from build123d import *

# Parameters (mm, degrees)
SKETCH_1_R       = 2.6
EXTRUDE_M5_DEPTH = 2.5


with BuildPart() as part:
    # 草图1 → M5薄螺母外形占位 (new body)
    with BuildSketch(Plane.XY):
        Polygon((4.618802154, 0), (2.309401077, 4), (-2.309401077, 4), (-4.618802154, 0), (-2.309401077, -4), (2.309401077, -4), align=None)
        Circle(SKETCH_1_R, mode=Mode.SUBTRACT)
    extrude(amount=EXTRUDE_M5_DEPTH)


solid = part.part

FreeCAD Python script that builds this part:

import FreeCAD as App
import Part
import Sketcher

V = App.Vector
Q = App.Units.Quantity

doc = App.newDocument("Part")
params = doc.addObject("Spreadsheet::Sheet", "Params")
for row, (alias, value) in enumerate([
    ("sketch1_diameter", "5.2 mm"),
    ("pad1_length", "2.5 mm"),
], start=1):
    params.set(f"A{row}", alias)
    params.set(f"B{row}", "=" + value)
    params.setAlias(f"B{row}", alias)

body = doc.addObject("PartDesign::Body", "Body")

sketch1 = body.newObject("Sketcher::SketchObject", "Sketch")
sketch1.AttachmentSupport = (doc.getObject("XY_Plane"), [""])
sketch1.MapMode = "FlatFace"
sketch1.addGeometry([
    Part.LineSegment(V(4.6, 0, 0), V(2.3, 4, 0)),
    Part.LineSegment(V(2.3, 4, 0), V(-2.3, 4, 0)),
    Part.LineSegment(V(-2.3, 4, 0), V(-4.6, 0, 0)),
    Part.LineSegment(V(-4.6, 0, 0), V(-2.3, -4, 0)),
    Part.LineSegment(V(-2.3, -4, 0), V(2.3, -4, 0)),
    Part.LineSegment(V(2.3, -4, 0), V(4.6, 0, 0)),
    Part.Circle(V(0, 0, 0), V(0, 0, 1), 2.6),
], False)
sketch1.addConstraint([
    Sketcher.Constraint("Coincident", 0, 2, 1, 1),
    Sketcher.Constraint("Coincident", 1, 2, 2, 1),
    Sketcher.Constraint("Coincident", 2, 2, 3, 1),
    Sketcher.Constraint("Coincident", 3, 2, 4, 1),
    Sketcher.Constraint("Coincident", 4, 2, 5, 1),
    Sketcher.Constraint("Coincident", 5, 2, 0, 1),
    Sketcher.Constraint("Horizontal", 1),
    Sketcher.Constraint("Horizontal", 4),
    Sketcher.Constraint("Coincident", 6, 3, -1, 1),
    Sketcher.Constraint("Symmetric", 0, 2, 3, 2, -1, 1),
    Sketcher.Constraint("Symmetric", 2, 2, 5, 2, -1, 1),
    Sketcher.Constraint("PointOnObject", 2, 2, -1),
    Sketcher.Constraint("Parallel", 2, 5),
    Sketcher.Constraint("Vertical", 1, 2, 3, 2),
    Sketcher.Constraint("Diameter", 6, Q("5.2 mm")),
    Sketcher.Constraint("Angle", 0, Q("120 deg")),
    Sketcher.Constraint("DistanceY", -1, 1, 0, 2, Q("4 mm")),
    Sketcher.Constraint("DistanceX", -1, 1, 0, 2, Q("2.309401 mm")),
])
sketch1.setExpression("Constraints[14]", "Params.sketch1_diameter")
pad1 = body.newObject("PartDesign::Pad", "Pad")
pad1.Profile = sketch1
pad1.setExpression("Length", "Params.pad1_length")

doc.recompute()
